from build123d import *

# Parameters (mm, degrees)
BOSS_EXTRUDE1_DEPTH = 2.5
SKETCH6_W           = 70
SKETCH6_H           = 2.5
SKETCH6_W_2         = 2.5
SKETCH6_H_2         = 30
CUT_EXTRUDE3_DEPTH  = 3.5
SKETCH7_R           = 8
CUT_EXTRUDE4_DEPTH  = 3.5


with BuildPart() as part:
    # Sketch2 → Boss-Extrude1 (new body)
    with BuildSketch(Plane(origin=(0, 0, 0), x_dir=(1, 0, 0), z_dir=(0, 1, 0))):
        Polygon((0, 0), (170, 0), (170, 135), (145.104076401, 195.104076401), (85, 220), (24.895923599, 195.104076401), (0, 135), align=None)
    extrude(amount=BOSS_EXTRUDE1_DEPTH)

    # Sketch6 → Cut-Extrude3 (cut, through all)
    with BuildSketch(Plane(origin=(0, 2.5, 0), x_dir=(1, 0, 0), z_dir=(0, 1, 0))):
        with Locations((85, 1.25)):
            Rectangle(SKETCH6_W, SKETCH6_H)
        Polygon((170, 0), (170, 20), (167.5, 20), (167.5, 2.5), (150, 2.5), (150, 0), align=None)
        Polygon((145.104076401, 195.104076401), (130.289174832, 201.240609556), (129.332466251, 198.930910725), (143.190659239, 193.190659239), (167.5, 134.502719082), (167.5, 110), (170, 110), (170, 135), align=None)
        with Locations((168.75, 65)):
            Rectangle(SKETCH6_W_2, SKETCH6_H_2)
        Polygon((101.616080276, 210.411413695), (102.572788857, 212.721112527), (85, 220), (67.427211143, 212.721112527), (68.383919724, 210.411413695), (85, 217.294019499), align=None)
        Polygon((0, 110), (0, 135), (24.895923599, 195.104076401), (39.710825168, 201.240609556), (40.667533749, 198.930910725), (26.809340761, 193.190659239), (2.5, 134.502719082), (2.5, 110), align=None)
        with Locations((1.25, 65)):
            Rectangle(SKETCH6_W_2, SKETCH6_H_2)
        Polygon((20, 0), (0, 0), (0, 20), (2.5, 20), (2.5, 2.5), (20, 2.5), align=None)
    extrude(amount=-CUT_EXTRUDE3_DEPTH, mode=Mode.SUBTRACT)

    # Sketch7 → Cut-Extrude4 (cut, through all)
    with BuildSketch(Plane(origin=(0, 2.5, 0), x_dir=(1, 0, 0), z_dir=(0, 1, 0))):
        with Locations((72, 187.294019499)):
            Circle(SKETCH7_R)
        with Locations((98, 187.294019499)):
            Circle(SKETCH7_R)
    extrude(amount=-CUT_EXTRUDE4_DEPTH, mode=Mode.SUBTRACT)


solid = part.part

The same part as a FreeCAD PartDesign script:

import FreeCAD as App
import Part
import Sketcher
from FreeCAD import Vector
Q = App.Units.Quantity


def add_polygon(sketch, points):
    """Adds a closed chain of lines whose ends are joined by coincident constraints."""
    first, n = sketch.GeometryCount, len(points)
    for a, b in zip(points, points[1:] + points[:1]):
        sketch.addGeometry(Part.LineSegment(App.Vector(*a, 0), App.Vector(*b, 0)), False)
    for i in range(n):
        sketch.addConstraint(Sketcher.Constraint("Coincident", first + i, 2, first + (i + 1) % n, 1))

doc = App.newDocument("Part")
body = doc.addObject("PartDesign::Body", "Body")

# Sketch on XZ plane
sketch1 = body.newObject("Sketcher::SketchObject", "Sketch")
sketch1.AttachmentSupport = (doc.getObject("XZ_Plane"), [""])
sketch1.MapMode = "FlatFace"
add_polygon(sketch1, [(0, 0), (170, 0), (170, -135), (145, -195), (85, -220), (25, -195), (0, -135)])  # lines 0-6
sketch1.addConstraint([
    Sketcher.Constraint("Horizontal", 0),
    Sketcher.Constraint("Vertical", 1),
    Sketcher.Constraint("Vertical", 6),
    Sketcher.Constraint("Coincident", 6, 2, -1, 1),
    Sketcher.Constraint("Perpendicular", 2, 4),
    Sketcher.Constraint("Perpendicular", 3, 5),
    Sketcher.Constraint("Horizontal", 2, 2, 4, 2),
    Sketcher.Constraint("Horizontal", 1, 2, 5, 2),
    Sketcher.Constraint("Equal", 2, 3),
    Sketcher.Constraint("Equal", 3, 4),
    Sketcher.Constraint("DistanceX", 0, 1, 0, 2, 170.0),
    Sketcher.Constraint("DistanceY", 1, 2, 1, 1, 135.0),
    Sketcher.Constraint("Angle", 2, Q("-112.5 deg")),
])
pad1 = body.newObject("PartDesign::Pad", "Pad")
pad1.Profile = sketch1
pad1.Length = 2.5
pad1.Reversed = True

# Sketch on XZ plane
sketch2 = body.newObject("Sketcher::SketchObject", "Sketch001")
sketch2.AttachmentSupport = (doc.getObject("XZ_Plane"), [""])
sketch2.MapMode = "FlatFace"
sketch2.AttachmentOffset = App.Placement(Vector(0, 0, -2.5), App.Rotation())
add_polygon(sketch2, [(50, -2.5), (50, 0), (120, 0), (120, -2.5)])  # lines 0-3
add_polygon(sketch2, [(170, 0), (170, -20), (167.5, -20), (167.5, -2.5), (150, -2.5), (150, 0)])  # lines 4-9
add_polygon(sketch2, [(145.1, -195.1), (130.3, -201.2), (129.3, -198.9), (143.2, -193.2), (167.5, -134.5), (167.5, -110), (170, -110), (170, -135)])  # lines 10-17
add_polygon(sketch2, [(167.5, -80), (167.5, -50), (170, -50), (170, -80)])  # lines 18-21
add_polygon(sketch2, [(101.6, -210.4), (102.6, -212.7), (85, -220), (67.4, -212.7), (68.4, -210.4), (85, -217.3)])  # lines 22-27
add_polygon(sketch2, [(0, -135), (0, -110), (2.5, -110), (2.5, -134.5), (26.8, -193.2), (40.7, -198.9), (39.7, -201.2), (24.9, -195.1)])  # lines 28-35
add_polygon(sketch2, [(0, -80), (0, -50), (2.5, -50), (2.5, -80)])  # lines 36-39
add_polygon(sketch2, [(0, 0), (20, 0), (20, -2.5), (2.5, -2.5), (2.5, -20), (0, -20)])  # lines 40-45
sketch2.addConstraint([
    Sketcher.Constraint("Vertical", 0),
    Sketcher.Constraint("Horizontal", 1),
    Sketcher.Constraint("Vertical", 2),
    Sketcher.Constraint("Horizontal", 3),
    Sketcher.Constraint("Vertical", 4),
    Sketcher.Constraint("Horizontal", 5),
    Sketcher.Constraint("Vertical", 6),
    Sketcher.Constraint("Horizontal", 7),
    Sketcher.Constraint("Vertical", 8),
    Sketcher.Constraint("Horizontal", 9),
    Sketcher.Constraint("Vertical", 14),
    Sketcher.Constraint("Horizontal", 15),
    Sketcher.Constraint("Vertical", 16),
    Sketcher.Constraint("Vertical", 18),
    Sketcher.Constraint("Horizontal", 19),
    Sketcher.Constraint("Vertical", 20),
    Sketcher.Constraint("Horizontal", 21),
    Sketcher.Constraint("Vertical", 28),
    Sketcher.Constraint("Horizontal", 29),
    Sketcher.Constraint("Vertical", 30),
    Sketcher.Constraint("Vertical", 36),
    Sketcher.Constraint("Horizontal", 37),
    Sketcher.Constraint("Vertical", 38),
    Sketcher.Constraint("Horizontal", 39),
    Sketcher.Constraint("Horizontal", 40),
    Sketcher.Constraint("Vertical", 41),
    Sketcher.Constraint("Horizontal", 42),
    Sketcher.Constraint("Vertical", 43),
    Sketcher.Constraint("Horizontal", 44),
    Sketcher.Constraint("Vertical", 45),
    Sketcher.Constraint("Coincident", 45, 2, -1, 1),
    Sketcher.Constraint("PointOnObject", 0, 2, -1),
    Sketcher.Constraint("PointOnObject", 8, 2, -1),
    Sketcher.Constraint("PointOnObject", 28, 2, -2),
    Sketcher.Constraint("PointOnObject", 36, 2, -2),
    Sketcher.Constraint("Perpendicular", 10, 11),
    Sketcher.Constraint("Perpendicular", 11, 12),
    Sketcher.Constraint("Parallel", 13, 17),
    Sketcher.Constraint("Perpendicular", 12, 22),
    Sketcher.Constraint("Perpendicular", 22, 23),
    Sketcher.Constraint("Perpendicular", 17, 24),
    Sketcher.Constraint("Perpendicular", 24, 25),
    Sketcher.Constraint("Perpendicular", 25, 26),
    Sketcher.Constraint("Parallel", 23, 27),
    Sketcher.Constraint("Perpendicular", 27, 31),
    Sketcher.Constraint("Parallel", 26, 32),
    Sketcher.Constraint("Perpendicular", 32, 33),
    Sketcher.Constraint("Perpendicular", 33, 34),
    Sketcher.Constraint("Parallel", 31, 35),
    Sketcher.Constraint("Horizontal", 3, 2, 6, 2),
    Sketcher.Constraint("Horizontal", 22, 2, 24, 2),
    Sketcher.Constraint("Horizontal", 25, 2, 27, 2),
    Sketcher.Constraint("Horizontal", 15, 2, 28, 2),
    Sketcher.Constraint("Horizontal", 13, 2, 30, 2),
    Sketcher.Constraint("Horizontal", 12, 2, 31, 2),
    Sketcher.Constraint("Horizontal", 11, 2, 32, 2),
    Sketcher.Constraint("Horizontal", 10, 2, 33, 2),
    Sketcher.Constraint("Horizontal", 17, 2, 34, 2),
    Sketcher.Constraint("Horizontal", 16, 2, 35, 2),
    Sketcher.Constraint("Horizontal", 19, 2, 36, 2),
    Sketcher.Constraint("Horizontal", 21, 2, 38, 2),
    Sketcher.Constraint("Horizontal", 7, 2, 41, 2),
    Sketcher.Constraint("Horizontal", 5, 2, 43, 2),
    Sketcher.Constraint("Vertical", 6, 2, 13, 2),
    Sketcher.Constraint("Vertical", 9, 2, 15, 2),
    Sketcher.Constraint("Vertical", 14, 2, 18, 2),
    Sketcher.Constraint("Vertical", 16, 2, 19, 2),
    Sketcher.Constraint("Vertical", 23, 2, 26, 2),
    Sketcher.Constraint("Vertical", 30, 2, 37, 2),
    Sketcher.Constraint("Vertical", 38, 2, 42, 2),
    Sketcher.Constraint("Equal", 9, 40),
    Sketcher.Constraint("Equal", 44, 0),
    Sketcher.Constraint("Equal", 40, 4),
    Sketcher.Constraint("Equal", 11, 22),
    Sketcher.Constraint("DistanceX", 1, 1, 1, 2, 70.0),
    Sketcher.Constraint("DistanceX", 9, 1, 9, 2, 20.0),
    Sketcher.Constraint("DistanceY", 16, 2, 16, 1, 25.0),
    Sketcher.Constraint("DistanceY", 18, 1, 18, 2, 30.0),
    Sketcher.Constraint("Distance", 12, 15.0),
    Sketcher.Constraint("DistanceX", 5, 2, 5, 1, 2.5),
    Sketcher.Constraint("DistanceX", -1, 1, 0, 2, 50.0),
    Sketcher.Constraint("DistanceX", -1, 1, 4, 2, 170.0),
    Sketcher.Constraint("DistanceY", 14, 2, -1, 1, 110.0),
    Sketcher.Constraint("DistanceY", 18, 2, -1, 1, 50.0),
    Sketcher.Constraint("DistanceX", -1, 1, 23, 2, 85.0),
    Sketcher.Constraint("DistanceY", 23, 2, -1, 1, 220.0),
    Sketcher.Constraint("Angle", 10, Q("-157.5 deg")),
    Sketcher.Constraint("Distance", 11, 2.5),
    Sketcher.Constraint("DistanceY", 14, 1, 14, 2, 24.502719),
    Sketcher.Constraint("DistanceY", 22, 2, 11, 2, 13.790202),
    Sketcher.Constraint("Distance", 13, 63.523369),
])
pocket1 = body.newObject("PartDesign::Pocket", "Pocket")
pocket1.Profile = sketch2
pocket1.Type = "ThroughAll"
pocket1.Reversed = True

# Sketch on XZ plane
sketch3 = body.newObject("Sketcher::SketchObject", "Sketch002")
sketch3.AttachmentSupport = (doc.getObject("XZ_Plane"), [""])
sketch3.MapMode = "FlatFace"
sketch3.AttachmentOffset = App.Placement(Vector(0, 0, -2.5), App.Rotation())
sketch3.addGeometry([
    Part.Circle(Vector(72, -187, 0), Vector(0, 0, 1), 8),
    Part.Circle(Vector(98, -187, 0), Vector(0, 0, 1), 8),
], False)
sketch3.addConstraint([
    Sketcher.Constraint("Equal", 0, 1),
    Sketcher.Constraint("Horizontal", 0, 3, 1, 3),
    Sketcher.Constraint("Diameter", 0, 16.0),
    Sketcher.Constraint("DistanceX", -1, 1, 0, 3, 72.0),
    Sketcher.Constraint("DistanceX", -1, 1, 1, 3, 98.0),
    Sketcher.Constraint("DistanceY", 0, 3, -1, 1, 187.294019),
])
pocket2 = body.newObject("PartDesign::Pocket", "Pocket001")
pocket2.Profile = sketch3
pocket2.Type = "ThroughAll"
pocket2.Reversed = True

doc.recompute()
